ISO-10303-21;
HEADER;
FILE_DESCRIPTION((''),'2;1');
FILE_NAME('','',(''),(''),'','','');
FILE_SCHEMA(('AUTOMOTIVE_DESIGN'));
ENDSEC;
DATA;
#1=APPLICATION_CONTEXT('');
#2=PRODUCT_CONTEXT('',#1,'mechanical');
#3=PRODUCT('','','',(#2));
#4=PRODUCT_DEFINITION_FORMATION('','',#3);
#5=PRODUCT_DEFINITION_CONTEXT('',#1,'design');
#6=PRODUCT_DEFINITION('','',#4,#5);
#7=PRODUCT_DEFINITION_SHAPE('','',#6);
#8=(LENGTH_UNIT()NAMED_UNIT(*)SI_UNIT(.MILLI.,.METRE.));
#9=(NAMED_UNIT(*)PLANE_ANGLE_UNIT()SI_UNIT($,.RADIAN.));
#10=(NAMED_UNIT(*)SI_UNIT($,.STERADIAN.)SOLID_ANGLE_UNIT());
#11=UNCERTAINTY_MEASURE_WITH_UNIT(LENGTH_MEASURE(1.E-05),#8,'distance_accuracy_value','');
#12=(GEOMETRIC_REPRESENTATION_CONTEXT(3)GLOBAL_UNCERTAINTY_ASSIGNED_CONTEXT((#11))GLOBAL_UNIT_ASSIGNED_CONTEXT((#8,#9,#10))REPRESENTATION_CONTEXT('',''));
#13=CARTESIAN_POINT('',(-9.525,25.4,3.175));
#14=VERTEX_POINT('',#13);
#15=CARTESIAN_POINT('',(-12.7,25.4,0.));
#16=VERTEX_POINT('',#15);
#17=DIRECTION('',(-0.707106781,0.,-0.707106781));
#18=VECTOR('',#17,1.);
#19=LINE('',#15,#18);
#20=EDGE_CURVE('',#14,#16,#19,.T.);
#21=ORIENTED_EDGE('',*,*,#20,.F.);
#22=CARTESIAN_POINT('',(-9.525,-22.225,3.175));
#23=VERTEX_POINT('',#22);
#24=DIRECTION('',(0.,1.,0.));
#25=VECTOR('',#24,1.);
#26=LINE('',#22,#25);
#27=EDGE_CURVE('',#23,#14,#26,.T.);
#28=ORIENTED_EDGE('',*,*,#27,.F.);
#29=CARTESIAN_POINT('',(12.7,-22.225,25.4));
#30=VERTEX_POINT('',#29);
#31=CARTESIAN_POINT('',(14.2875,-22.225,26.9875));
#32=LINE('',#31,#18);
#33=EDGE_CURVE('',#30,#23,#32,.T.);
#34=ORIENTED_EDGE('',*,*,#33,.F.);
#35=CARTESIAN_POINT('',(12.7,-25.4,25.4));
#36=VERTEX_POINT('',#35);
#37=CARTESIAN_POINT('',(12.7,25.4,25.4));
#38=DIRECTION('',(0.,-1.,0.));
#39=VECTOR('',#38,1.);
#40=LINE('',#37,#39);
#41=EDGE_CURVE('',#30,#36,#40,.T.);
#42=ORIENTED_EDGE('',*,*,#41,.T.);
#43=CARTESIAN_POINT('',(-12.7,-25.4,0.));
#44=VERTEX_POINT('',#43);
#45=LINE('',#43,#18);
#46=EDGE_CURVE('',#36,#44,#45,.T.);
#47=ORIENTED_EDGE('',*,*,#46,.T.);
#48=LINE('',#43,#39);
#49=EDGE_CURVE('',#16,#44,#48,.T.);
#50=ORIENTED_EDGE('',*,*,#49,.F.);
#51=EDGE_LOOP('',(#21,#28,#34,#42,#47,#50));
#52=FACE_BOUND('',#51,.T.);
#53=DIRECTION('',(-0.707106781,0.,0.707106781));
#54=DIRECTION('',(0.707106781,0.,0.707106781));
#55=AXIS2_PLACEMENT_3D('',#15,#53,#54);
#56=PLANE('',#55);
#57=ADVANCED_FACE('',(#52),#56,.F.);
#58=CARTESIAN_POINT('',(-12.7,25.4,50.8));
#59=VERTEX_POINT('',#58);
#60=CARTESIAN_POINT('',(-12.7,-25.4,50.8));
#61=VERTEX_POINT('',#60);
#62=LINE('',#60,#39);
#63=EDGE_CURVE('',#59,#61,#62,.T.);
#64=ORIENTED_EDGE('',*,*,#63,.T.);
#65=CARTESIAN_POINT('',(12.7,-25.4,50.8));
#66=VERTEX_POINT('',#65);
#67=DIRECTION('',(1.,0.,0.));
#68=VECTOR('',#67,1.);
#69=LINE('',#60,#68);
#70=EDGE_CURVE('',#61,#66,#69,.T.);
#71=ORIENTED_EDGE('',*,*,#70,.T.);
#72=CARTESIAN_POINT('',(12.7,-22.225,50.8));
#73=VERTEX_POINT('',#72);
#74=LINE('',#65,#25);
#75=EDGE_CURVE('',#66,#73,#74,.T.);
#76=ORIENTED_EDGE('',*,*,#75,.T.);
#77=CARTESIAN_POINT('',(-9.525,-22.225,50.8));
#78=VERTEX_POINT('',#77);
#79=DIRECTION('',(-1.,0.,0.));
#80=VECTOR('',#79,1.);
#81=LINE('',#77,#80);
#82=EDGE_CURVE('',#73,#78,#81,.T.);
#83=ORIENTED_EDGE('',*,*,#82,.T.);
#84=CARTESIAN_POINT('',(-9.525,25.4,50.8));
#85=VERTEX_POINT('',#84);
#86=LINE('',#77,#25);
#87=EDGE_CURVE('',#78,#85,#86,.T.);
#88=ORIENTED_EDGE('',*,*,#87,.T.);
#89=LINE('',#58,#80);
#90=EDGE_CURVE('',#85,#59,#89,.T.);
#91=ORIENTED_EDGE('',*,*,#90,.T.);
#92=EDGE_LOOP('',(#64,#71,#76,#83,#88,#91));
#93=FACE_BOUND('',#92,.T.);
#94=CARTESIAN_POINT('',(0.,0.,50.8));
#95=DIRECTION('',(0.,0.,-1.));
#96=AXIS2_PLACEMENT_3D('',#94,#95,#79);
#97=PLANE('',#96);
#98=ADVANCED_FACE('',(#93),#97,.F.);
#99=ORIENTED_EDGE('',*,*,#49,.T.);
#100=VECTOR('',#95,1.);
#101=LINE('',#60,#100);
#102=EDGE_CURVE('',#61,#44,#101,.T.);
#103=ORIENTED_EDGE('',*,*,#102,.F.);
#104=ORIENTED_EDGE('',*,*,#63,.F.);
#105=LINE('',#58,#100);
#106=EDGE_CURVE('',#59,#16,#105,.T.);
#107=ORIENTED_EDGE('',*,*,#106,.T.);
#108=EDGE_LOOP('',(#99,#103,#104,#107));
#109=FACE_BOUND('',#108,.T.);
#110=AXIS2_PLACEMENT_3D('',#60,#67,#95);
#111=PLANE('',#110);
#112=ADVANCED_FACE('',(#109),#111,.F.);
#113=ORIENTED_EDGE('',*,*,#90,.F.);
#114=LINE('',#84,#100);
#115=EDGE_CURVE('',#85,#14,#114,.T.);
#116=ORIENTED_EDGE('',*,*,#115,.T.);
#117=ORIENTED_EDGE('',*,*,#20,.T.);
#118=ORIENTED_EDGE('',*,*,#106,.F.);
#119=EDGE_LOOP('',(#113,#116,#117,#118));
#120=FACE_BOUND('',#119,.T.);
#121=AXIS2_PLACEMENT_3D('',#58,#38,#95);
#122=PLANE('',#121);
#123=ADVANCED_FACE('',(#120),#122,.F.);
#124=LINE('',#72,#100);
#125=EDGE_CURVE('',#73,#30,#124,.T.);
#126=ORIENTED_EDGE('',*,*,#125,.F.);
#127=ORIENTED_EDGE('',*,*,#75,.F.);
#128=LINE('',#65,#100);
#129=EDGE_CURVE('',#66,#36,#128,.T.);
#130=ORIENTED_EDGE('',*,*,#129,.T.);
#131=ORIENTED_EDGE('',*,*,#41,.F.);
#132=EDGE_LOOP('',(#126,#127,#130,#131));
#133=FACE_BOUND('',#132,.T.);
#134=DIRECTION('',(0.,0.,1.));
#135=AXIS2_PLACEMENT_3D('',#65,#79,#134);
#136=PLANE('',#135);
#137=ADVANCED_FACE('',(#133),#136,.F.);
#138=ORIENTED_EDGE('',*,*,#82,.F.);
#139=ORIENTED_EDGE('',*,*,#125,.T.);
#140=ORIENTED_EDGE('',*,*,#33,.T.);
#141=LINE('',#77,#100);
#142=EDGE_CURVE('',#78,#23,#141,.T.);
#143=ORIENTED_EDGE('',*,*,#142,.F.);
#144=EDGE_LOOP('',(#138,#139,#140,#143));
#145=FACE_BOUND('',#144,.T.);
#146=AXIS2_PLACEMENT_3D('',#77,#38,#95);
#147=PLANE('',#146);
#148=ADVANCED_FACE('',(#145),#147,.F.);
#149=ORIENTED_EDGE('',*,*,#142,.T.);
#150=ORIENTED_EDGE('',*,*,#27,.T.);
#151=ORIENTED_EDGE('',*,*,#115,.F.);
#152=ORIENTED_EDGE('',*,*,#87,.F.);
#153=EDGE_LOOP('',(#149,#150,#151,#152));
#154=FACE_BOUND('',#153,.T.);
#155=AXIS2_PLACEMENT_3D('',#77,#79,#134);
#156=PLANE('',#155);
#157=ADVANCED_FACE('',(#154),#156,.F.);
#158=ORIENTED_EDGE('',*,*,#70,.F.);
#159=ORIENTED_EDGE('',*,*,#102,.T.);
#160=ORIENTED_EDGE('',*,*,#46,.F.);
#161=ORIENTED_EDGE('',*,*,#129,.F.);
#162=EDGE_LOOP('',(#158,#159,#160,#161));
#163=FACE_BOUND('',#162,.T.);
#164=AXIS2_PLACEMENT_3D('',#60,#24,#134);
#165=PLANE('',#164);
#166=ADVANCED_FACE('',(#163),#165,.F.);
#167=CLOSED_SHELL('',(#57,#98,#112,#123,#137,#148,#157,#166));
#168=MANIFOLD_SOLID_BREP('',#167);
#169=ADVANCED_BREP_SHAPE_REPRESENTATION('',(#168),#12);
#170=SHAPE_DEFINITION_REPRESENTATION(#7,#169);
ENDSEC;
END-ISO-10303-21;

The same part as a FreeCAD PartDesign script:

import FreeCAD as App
import Part
import Sketcher

V = App.Vector
Q = App.Units.Quantity

doc = App.newDocument("Part")
body = doc.addObject("PartDesign::Body", "Body")

sketch1 = body.newObject("Sketcher::SketchObject", "Sketch")
sketch1.AttachmentSupport = (doc.getObject("XY_Plane"), [""])
sketch1.MapMode = "FlatFace"
sketch1.addGeometry([
    Part.LineSegment(V(12.7, -22.2, 0), V(-9.5, -22.2, 0)),
    Part.LineSegment(V(-9.5, -22.2, 0), V(-9.5, 25.4, 0)),
    Part.LineSegment(V(-9.5, 25.4, 0), V(-12.7, 25.4, 0)),
    Part.LineSegment(V(-12.7, 25.4, 0), V(-12.7, -25.4, 0)),
    Part.LineSegment(V(-12.7, -25.4, 0), V(12.7, -25.4, 0)),
    Part.LineSegment(V(12.7, -25.4, 0), V(12.7, -22.2, 0)),
], False)
sketch1.addConstraint([
    Sketcher.Constraint("Coincident", 0, 2, 1, 1),
    Sketcher.Constraint("Coincident", 1, 2, 2, 1),
    Sketcher.Constraint("Coincident", 2, 2, 3, 1),
    Sketcher.Constraint("Coincident", 3, 2, 4, 1),
    Sketcher.Constraint("Coincident", 4, 2, 5, 1),
    Sketcher.Constraint("Coincident", 5, 2, 0, 1),
    Sketcher.Constraint("Horizontal", 0),
    Sketcher.Constraint("Vertical", 1),
    Sketcher.Constraint("Horizontal", 2),
    Sketcher.Constraint("Vertical", 3),
    Sketcher.Constraint("Horizontal", 4),
    Sketcher.Constraint("Vertical", 5),
    Sketcher.Constraint("Symmetric", 2, 2, 4, 2, -1, 1),
    Sketcher.Constraint("Equal", 2, 5),
    Sketcher.Constraint("DistanceX", 4, 1, 4, 2, Q("1 in")),
    Sketcher.Constraint("DistanceY", 3, 2, 3, 1, Q("2 in")),
    Sketcher.Constraint("DistanceX", 0, 2, 0, 1, Q("0.875 in")),
])
pad1 = body.newObject("PartDesign::Pad", "Pad")
pad1.Profile = sketch1
pad1.Length = Q("2 in")

sketch2 = body.newObject("Sketcher::SketchObject", "Sketch001")
sketch2.AttachmentSupport = (doc.getObject("XZ_Plane"), [""])
sketch2.MapMode = "FlatFace"
sketch2.AttachmentOffset = App.Placement(V(0, 0, 1 * 25.4), App.Rotation())
sketch2.addGeometry([
    Part.LineSegment(V(13, 25, 0), V(-13, 0, 0)),
    Part.LineSegment(V(-13, 0, 0), V(13, 0, 0)),
    Part.LineSegment(V(13, 0, 0), V(13, 25, 0)),
], False)
sketch2.addConstraint([
    Sketcher.Constraint("Coincident", 0, 2, 1, 1),
    Sketcher.Constraint("Coincident", 1, 2, 2, 1),
    Sketcher.Constraint("Coincident", 2, 2, 0, 1),
    Sketcher.Constraint("Horizontal", 1),
    Sketcher.Constraint("Vertical", 2),
    Sketcher.Constraint("Symmetric", 0, 2, 1, 2, -1, 1),
    Sketcher.Constraint("Equal", 1, 2),
    Sketcher.Constraint("DistanceX", 1, 1, 1, 2, Q("1 in")),
])
pocket1 = body.newObject("PartDesign::Pocket", "Pocket")
pocket1.Profile = sketch2
pocket1.Type = "ThroughAll"

doc.recompute()
